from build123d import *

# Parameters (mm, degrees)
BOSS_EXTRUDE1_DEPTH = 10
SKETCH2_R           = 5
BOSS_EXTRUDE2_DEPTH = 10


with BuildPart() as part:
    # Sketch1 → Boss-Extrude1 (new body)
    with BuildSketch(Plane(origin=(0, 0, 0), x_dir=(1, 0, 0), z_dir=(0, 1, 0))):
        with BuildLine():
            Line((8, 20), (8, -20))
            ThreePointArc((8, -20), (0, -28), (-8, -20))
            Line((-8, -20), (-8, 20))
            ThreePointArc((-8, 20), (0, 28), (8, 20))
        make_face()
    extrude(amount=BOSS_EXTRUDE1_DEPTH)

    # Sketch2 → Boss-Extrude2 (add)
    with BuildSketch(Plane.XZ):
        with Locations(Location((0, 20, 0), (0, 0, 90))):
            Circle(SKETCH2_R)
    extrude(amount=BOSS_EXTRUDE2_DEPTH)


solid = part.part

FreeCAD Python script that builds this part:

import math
import FreeCAD as App
import Part
import Sketcher
Q = App.Units.Quantity

doc = App.newDocument("Part")
params = doc.addObject("Spreadsheet::Sheet", "Params")
for row, (alias, value) in enumerate([
    ("sketch1_radius", "8 mm"),
    ("sketch1_height", "40 mm"),
    ("pad1_length", "10 mm"),
    ("sketch2_diameter", "10 mm"),
    ("pad2_length", "10 mm"),
], start=1):
    params.set(f"A{row}", alias)
    params.set(f"B{row}", "=" + value)
    params.setAlias(f"B{row}", alias)

body = doc.addObject("PartDesign::Body", "Body")

# Sketch on XZ plane
sketch1 = body.newObject("Sketcher::SketchObject", "Sketch")
sketch1.AttachmentSupport = (doc.getObject("XZ_Plane"), [""])
sketch1.MapMode = "FlatFace"
sketch1.addGeometry(Part.LineSegment(App.Vector(8, 20, 0), App.Vector(8, -20, 0)), False)
sketch1.addGeometry(Part.ArcOfCircle(Part.Circle(App.Vector(0, -20, 0), App.Vector(0, 0, 1), 8), math.radians(180), math.radians(360)), False)
sketch1.addGeometry(Part.LineSegment(App.Vector(-8, -20, 0), App.Vector(-8, 20, 0)), False)
sketch1.addGeometry(Part.ArcOfCircle(Part.Circle(App.Vector(0, 20, 0), App.Vector(0, 0, 1), 8), math.radians(0), math.radians(180)), False)
sketch1.addConstraint(Sketcher.Constraint("Tangent", 0, 2, 1, 2))
sketch1.addConstraint(Sketcher.Constraint("Tangent", 1, 1, 2, 1))
sketch1.addConstraint(Sketcher.Constraint("Tangent", 2, 2, 3, 2))
sketch1.addConstraint(Sketcher.Constraint("Tangent", 3, 1, 0, 1))
sketch1.addConstraint(Sketcher.Constraint("Vertical", 0))
sketch1.addConstraint(Sketcher.Constraint("Vertical", 2))
sketch1.addConstraint(Sketcher.Constraint("Symmetric", 1, 3, 3, 3, -1, 1))
sketch1.addConstraint(Sketcher.Constraint("Radius", 1, Q("8 mm")))
sketch1.addConstraint(Sketcher.Constraint("DistanceY", 0, 2, 0, 1, Q("40 mm")))
sketch1.setExpression("Constraints[7]", "Params.sketch1_radius")
sketch1.setExpression("Constraints[8]", "Params.sketch1_height")
pad1 = body.newObject("PartDesign::Pad", "Pad")
pad1.Profile = sketch1
pad1.setExpression("Length", "Params.pad1_length")
pad1.Reversed = True

# Sketch on XZ plane
sketch2 = body.newObject("Sketcher::SketchObject", "Sketch001")
sketch2.AttachmentSupport = (doc.getObject("XZ_Plane"), [""])
sketch2.MapMode = "FlatFace"
sketch2.addGeometry(Part.Circle(App.Vector(0, 20, 0), App.Vector(0, 0, 1), 5), False)
sketch2.addConstraint(Sketcher.Constraint("PointOnObject", 0, 3, -2))
sketch2.addConstraint(Sketcher.Constraint("Diameter", 0, Q("10 mm")))
sketch2.addConstraint(Sketcher.Constraint("DistanceY", -1, 1, 0, 3, Q("20 mm")))
sketch2.setExpression("Constraints[1]", "Params.sketch2_diameter")
pad2 = body.newObject("PartDesign::Pad", "Pad001")
pad2.Profile = sketch2
pad2.setExpression("Length", "Params.pad2_length")

doc.recompute()
